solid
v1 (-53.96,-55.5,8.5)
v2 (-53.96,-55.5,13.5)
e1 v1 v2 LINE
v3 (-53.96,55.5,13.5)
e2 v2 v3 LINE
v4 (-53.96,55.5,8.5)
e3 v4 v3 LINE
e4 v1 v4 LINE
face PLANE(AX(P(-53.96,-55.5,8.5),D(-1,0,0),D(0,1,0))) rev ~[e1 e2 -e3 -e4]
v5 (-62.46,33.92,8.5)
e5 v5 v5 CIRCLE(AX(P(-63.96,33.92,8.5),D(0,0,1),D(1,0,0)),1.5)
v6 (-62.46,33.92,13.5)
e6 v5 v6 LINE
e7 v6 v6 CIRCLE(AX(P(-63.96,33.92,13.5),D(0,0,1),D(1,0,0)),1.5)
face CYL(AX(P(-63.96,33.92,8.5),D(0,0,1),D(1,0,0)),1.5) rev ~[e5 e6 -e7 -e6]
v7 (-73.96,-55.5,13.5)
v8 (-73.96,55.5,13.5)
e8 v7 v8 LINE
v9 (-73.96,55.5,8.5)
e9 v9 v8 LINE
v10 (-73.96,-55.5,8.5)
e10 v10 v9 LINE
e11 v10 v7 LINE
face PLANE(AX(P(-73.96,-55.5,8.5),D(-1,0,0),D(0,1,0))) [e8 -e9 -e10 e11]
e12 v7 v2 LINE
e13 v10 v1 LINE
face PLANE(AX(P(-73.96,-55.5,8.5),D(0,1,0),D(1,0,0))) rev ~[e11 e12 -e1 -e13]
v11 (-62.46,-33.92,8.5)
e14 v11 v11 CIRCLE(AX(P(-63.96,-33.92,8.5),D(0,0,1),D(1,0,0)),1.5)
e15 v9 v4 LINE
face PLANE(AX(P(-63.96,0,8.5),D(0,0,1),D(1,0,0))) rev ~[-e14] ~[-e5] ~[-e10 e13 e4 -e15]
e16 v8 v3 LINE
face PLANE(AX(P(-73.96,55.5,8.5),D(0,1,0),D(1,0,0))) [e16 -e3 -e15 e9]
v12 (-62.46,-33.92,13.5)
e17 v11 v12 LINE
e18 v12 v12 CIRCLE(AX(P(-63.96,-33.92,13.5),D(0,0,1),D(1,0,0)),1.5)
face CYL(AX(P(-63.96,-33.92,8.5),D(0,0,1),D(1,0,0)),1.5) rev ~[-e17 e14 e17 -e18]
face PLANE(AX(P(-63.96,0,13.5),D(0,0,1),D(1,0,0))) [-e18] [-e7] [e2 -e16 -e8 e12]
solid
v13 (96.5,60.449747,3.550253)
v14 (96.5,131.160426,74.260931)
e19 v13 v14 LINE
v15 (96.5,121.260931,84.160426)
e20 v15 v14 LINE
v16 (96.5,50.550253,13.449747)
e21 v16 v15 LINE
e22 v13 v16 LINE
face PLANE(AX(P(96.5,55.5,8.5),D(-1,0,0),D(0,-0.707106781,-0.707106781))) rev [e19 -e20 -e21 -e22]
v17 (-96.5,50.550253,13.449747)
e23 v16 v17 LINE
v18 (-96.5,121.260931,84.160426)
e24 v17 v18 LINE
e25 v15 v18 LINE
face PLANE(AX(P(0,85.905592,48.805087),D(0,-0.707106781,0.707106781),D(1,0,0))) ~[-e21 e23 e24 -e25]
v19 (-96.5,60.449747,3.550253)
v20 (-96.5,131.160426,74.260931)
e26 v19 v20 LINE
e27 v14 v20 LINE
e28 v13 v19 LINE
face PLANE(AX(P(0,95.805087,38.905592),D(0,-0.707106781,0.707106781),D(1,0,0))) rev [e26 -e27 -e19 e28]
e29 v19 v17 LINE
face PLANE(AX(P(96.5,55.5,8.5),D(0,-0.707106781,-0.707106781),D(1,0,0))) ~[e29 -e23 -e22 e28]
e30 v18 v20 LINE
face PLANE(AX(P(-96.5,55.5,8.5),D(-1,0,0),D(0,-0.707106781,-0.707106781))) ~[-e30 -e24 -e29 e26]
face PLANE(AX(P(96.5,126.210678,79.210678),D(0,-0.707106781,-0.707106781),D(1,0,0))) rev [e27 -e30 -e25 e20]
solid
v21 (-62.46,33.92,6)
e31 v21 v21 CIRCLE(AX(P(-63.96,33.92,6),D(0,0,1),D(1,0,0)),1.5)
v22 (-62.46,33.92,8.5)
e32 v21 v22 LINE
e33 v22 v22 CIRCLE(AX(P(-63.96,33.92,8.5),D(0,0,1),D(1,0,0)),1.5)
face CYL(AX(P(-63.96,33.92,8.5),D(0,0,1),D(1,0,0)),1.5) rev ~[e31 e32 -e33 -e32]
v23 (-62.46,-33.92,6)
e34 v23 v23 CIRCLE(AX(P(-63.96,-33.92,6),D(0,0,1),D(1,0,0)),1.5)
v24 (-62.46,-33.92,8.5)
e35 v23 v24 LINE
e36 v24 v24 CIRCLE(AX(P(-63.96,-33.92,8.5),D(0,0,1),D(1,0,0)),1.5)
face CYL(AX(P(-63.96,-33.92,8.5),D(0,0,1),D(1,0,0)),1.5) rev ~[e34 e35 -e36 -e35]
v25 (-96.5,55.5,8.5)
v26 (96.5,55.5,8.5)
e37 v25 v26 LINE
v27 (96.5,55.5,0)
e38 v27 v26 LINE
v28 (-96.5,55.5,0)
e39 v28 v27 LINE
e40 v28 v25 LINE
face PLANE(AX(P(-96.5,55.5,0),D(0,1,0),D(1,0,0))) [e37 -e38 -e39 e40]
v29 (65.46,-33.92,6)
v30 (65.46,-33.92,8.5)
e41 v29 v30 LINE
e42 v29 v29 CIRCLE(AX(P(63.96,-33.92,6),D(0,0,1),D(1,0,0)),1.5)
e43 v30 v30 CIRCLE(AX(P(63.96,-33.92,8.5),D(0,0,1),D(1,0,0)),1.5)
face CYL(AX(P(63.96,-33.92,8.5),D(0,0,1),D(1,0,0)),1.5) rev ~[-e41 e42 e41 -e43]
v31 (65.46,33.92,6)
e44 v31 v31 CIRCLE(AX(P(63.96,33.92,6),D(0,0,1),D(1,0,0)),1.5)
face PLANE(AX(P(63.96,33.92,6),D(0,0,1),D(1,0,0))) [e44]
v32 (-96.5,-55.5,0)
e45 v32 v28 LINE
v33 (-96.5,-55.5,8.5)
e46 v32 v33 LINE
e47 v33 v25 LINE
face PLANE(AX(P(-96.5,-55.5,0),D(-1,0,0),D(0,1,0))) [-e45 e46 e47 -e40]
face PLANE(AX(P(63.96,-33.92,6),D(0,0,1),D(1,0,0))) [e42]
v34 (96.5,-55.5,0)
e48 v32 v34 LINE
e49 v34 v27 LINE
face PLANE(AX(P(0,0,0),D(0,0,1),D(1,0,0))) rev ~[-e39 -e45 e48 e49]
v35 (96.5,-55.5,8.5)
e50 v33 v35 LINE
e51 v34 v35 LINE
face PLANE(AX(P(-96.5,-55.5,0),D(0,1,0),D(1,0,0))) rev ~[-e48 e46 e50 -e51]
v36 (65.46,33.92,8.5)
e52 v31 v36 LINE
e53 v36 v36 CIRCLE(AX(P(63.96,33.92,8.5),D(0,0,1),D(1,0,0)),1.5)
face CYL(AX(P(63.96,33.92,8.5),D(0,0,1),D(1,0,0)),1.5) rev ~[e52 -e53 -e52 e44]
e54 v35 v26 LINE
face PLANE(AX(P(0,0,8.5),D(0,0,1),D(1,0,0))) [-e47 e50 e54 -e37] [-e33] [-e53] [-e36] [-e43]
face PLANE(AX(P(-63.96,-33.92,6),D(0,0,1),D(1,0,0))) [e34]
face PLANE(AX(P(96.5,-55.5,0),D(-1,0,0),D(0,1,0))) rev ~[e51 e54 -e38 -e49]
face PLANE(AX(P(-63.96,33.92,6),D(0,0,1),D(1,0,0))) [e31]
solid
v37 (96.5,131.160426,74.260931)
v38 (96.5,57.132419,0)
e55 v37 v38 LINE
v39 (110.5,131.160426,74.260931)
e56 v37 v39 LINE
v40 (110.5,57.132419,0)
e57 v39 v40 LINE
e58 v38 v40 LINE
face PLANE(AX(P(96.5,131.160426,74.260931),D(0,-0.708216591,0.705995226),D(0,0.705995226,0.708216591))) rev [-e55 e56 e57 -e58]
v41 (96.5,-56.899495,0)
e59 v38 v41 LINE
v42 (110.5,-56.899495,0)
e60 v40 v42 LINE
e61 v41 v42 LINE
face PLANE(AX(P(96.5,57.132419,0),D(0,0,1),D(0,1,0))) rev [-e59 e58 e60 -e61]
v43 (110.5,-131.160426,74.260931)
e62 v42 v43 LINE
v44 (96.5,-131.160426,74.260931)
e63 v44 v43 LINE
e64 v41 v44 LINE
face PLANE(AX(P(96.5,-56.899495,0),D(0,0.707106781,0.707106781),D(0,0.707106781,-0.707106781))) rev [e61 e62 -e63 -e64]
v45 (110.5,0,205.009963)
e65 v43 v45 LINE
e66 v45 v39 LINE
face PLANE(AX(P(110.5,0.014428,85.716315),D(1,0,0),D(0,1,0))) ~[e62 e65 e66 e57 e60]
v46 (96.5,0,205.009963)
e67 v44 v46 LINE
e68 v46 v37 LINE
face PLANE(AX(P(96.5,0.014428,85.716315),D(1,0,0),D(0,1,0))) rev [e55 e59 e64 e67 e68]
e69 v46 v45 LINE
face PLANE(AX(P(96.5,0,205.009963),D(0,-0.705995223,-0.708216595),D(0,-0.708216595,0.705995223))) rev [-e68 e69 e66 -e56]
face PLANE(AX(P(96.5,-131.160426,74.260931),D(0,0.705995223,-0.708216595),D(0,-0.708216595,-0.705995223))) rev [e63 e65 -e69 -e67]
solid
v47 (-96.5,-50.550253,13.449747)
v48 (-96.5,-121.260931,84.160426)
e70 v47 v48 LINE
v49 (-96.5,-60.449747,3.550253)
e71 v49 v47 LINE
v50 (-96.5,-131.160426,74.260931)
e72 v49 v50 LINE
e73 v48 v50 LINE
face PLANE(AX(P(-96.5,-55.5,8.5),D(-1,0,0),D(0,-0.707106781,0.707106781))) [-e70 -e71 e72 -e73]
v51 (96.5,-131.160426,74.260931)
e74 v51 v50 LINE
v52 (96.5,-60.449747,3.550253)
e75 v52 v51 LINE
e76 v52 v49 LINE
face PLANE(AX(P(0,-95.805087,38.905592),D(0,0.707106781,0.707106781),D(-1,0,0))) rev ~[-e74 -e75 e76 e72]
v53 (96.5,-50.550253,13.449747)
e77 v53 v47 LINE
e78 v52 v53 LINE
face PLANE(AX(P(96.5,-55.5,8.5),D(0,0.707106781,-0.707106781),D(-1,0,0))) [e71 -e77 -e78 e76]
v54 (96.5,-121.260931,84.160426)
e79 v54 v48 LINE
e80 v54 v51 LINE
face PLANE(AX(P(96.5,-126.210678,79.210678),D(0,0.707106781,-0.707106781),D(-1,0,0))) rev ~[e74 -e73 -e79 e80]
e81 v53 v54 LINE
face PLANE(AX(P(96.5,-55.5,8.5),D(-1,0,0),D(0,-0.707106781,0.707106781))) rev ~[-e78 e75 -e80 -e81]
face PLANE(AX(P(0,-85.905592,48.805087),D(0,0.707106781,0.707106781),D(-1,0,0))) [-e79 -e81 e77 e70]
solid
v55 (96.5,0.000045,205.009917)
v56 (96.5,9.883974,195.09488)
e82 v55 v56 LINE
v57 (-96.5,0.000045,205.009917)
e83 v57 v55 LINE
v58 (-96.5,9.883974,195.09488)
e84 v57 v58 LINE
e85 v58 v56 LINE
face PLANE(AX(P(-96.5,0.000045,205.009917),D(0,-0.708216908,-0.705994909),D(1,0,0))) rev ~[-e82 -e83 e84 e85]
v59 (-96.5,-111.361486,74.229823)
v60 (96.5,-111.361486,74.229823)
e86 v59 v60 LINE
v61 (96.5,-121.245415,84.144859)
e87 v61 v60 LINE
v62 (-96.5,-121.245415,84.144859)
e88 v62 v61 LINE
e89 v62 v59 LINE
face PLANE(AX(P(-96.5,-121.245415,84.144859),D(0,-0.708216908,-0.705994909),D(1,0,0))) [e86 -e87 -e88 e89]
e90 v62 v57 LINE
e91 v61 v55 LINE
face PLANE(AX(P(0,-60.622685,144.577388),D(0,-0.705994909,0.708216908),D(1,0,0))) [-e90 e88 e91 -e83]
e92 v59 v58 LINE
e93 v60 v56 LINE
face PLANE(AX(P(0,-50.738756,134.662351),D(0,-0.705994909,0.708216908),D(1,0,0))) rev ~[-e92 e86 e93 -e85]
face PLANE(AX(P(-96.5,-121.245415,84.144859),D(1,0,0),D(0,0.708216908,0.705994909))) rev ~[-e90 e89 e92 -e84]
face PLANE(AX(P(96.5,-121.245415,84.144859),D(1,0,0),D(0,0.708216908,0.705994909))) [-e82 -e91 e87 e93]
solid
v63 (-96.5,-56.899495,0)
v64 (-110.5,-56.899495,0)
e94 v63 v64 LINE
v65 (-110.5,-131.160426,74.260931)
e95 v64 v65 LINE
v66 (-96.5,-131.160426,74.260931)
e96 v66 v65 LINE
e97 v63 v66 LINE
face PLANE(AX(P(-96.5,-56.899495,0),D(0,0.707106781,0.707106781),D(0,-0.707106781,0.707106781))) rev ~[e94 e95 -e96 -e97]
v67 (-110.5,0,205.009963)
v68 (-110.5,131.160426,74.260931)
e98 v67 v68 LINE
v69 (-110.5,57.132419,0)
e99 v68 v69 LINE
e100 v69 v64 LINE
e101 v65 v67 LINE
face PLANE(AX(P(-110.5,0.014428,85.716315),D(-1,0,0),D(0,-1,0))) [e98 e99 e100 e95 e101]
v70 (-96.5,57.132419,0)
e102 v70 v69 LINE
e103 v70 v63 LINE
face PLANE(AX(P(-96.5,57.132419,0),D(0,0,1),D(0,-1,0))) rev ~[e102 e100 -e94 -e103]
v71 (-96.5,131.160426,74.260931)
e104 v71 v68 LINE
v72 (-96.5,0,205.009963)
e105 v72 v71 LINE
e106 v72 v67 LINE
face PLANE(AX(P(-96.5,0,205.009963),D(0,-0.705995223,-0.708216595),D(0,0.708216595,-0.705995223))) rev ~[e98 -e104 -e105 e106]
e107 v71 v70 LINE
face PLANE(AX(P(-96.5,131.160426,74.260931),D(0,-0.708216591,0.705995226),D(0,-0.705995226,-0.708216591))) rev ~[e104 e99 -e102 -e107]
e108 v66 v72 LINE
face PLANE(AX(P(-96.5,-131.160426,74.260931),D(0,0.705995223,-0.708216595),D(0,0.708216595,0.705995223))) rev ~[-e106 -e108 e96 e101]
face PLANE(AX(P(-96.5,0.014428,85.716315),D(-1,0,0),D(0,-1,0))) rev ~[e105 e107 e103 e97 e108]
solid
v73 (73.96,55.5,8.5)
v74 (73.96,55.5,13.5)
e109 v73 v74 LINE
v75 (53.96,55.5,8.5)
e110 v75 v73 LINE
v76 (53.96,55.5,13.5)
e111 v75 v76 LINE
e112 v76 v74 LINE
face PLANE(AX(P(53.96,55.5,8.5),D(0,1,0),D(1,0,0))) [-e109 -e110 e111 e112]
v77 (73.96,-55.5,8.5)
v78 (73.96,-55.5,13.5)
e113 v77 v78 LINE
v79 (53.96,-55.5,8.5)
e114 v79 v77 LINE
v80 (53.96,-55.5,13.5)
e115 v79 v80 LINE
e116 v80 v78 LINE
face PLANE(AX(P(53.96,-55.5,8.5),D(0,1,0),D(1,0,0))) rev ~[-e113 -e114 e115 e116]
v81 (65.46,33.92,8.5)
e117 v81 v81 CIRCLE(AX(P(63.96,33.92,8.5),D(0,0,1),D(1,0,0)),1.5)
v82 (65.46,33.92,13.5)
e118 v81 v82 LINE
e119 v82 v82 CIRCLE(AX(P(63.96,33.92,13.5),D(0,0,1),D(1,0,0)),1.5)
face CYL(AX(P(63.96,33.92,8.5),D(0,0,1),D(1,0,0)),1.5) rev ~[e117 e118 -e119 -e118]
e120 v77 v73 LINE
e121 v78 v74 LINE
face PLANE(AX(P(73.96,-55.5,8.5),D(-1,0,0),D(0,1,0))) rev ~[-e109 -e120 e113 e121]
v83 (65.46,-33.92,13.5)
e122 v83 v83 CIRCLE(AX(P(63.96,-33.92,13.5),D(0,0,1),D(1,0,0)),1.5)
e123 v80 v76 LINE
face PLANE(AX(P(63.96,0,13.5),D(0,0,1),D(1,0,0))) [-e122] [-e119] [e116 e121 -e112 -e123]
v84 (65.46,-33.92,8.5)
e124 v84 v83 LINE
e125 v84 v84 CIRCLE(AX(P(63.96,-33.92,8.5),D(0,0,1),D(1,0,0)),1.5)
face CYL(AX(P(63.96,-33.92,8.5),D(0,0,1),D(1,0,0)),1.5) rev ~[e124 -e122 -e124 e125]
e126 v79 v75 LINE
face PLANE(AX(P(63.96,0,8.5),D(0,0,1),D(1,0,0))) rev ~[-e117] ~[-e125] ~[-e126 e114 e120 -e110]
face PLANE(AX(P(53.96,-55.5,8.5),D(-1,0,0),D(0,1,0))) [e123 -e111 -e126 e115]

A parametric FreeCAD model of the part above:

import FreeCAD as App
import Part
import Sketcher
from FreeCAD import Vector
Q = App.Units.Quantity

doc = App.newDocument("Part")
body = doc.addObject("PartDesign::Body", "Body")

# Sketch on XY plane
sketch1 = body.newObject("Sketcher::SketchObject", "Sketch")
sketch1.AttachmentSupport = (doc.getObject("XY_Plane"), [""])
sketch1.MapMode = "FlatFace"
sketch1.addGeometry([
    Part.LineSegment(Vector(-96, 56, 0), Vector(-96, -56, 0)),
    Part.LineSegment(Vector(-96, -56, 0), Vector(96, -56, 0)),
    Part.LineSegment(Vector(96, -56, 0), Vector(96, 56, 0)),
    Part.LineSegment(Vector(96, 56, 0), Vector(-96, 56, 0)),
], False)
sketch1.addConstraint([
    Sketcher.Constraint("Coincident", 0, 2, 1, 1),
    Sketcher.Constraint("Coincident", 1, 2, 2, 1),
    Sketcher.Constraint("Coincident", 2, 2, 3, 1),
    Sketcher.Constraint("Coincident", 3, 2, 0, 1),
    Sketcher.Constraint("Vertical", 0),
    Sketcher.Constraint("Horizontal", 1),
    Sketcher.Constraint("Vertical", 2),
    Sketcher.Constraint("Horizontal", 3),
    Sketcher.Constraint("Symmetric", 0, 2, 2, 2, -1, 1),
    Sketcher.Constraint("DistanceX", 1, 1, 1, 2, Q("193 mm")),
    Sketcher.Constraint("DistanceY", 0, 2, 0, 1, Q("111 mm")),
])
pad1 = body.newObject("PartDesign::Pad", "Pad")
pad1.Profile = sketch1
pad1.Length = 8.5
body2 = doc.addObject("PartDesign::Body", "Body001")
body2.AllowCompound = True

# Sketch on XY plane
sketch2 = body2.newObject("Sketcher::SketchObject", "Sketch001")
sketch2.AttachmentSupport = (doc.getObject("XY_Plane001"), [""])
sketch2.MapMode = "FlatFace"
sketch2.AttachmentOffset = App.Placement(Vector(0, 0, 8.5), App.Rotation())
sketch2.addGeometry([
    Part.LineSegment(Vector(-74, 56, 0), Vector(-74, -56, 0)),  # 0
    Part.LineSegment(Vector(-74, -56, 0), Vector(-54, -56, 0)),  # 1
    Part.LineSegment(Vector(-54, -56, 0), Vector(-54, 56, 0)),  # 2
    Part.LineSegment(Vector(-54, 56, 0), Vector(-74, 56, 0)),  # 3
    Part.LineSegment(Vector(54, 56, 0), Vector(54, -56, 0)),  # 4
    Part.LineSegment(Vector(54, -56, 0), Vector(74, -56, 0)),  # 5
    Part.LineSegment(Vector(74, -56, 0), Vector(74, 56, 0)),  # 6
    Part.LineSegment(Vector(74, 56, 0), Vector(54, 56, 0)),  # 7
], False)
sketch2.addConstraint([
    Sketcher.Constraint("Coincident", 0, 2, 1, 1),
    Sketcher.Constraint("Coincident", 1, 2, 2, 1),
    Sketcher.Constraint("Coincident", 2, 2, 3, 1),
    Sketcher.Constraint("Coincident", 3, 2, 0, 1),
    Sketcher.Constraint("Coincident", 4, 2, 5, 1),
    Sketcher.Constraint("Coincident", 5, 2, 6, 1),
    Sketcher.Constraint("Coincident", 6, 2, 7, 1),
    Sketcher.Constraint("Coincident", 7, 2, 4, 1),
    Sketcher.Constraint("Vertical", 0),
    Sketcher.Constraint("Horizontal", 1),
    Sketcher.Constraint("Vertical", 2),
    Sketcher.Constraint("Horizontal", 3),
    Sketcher.Constraint("Vertical", 4),
    Sketcher.Constraint("Horizontal", 5),
    Sketcher.Constraint("Vertical", 6),
    Sketcher.Constraint("Horizontal", 7),
    Sketcher.Constraint("Symmetric", 2, 2, 4, 2, -1, 1),
    Sketcher.Constraint("Symmetric", 0, 2, 6, 2, -1, 1),
    Sketcher.Constraint("Horizontal", 1, 2, 4, 2),
    Sketcher.Constraint("DistanceX", 1, 1, 1, 2, Q("20 mm")),
    Sketcher.Constraint("DistanceY", 0, 2, 0, 1, Q("111 mm")),
    Sketcher.Constraint("DistanceX", 0, 2, -1, 1, Q("73.96 mm")),
])
pad2 = body2.newObject("PartDesign::Pad", "Pad001")
pad2.Profile = sketch2
pad2.Length = 5
body3 = doc.addObject("PartDesign::Body", "Body002")
body3.AllowCompound = True

# Sketch on XY plane
sketch3 = body3.newObject("Sketcher::SketchObject", "Sketch002")
sketch3.AttachmentSupport = (doc.getObject("XY_Plane002"), [""])
sketch3.MapMode = "FlatFace"
sketch3.AttachmentOffset = App.Placement(Vector(0, 0, 8.5), App.Rotation())
sketch3.addGeometry([
    Part.Circle(Vector(-64, 33.9, 0), Vector(0, 0, 1), 1.5),
    Part.Circle(Vector(64, 33.9, 0), Vector(0, 0, 1), 1.5),
    Part.Circle(Vector(-64, -33.9, 0), Vector(0, 0, 1), 1.5),
    Part.Circle(Vector(64, -33.9, 0), Vector(0, 0, 1), 1.5),
], False)
sketch3.addConstraint([
    Sketcher.Constraint("Equal", 0, 1),
    Sketcher.Constraint("Equal", 1, 2),
    Sketcher.Constraint("Equal", 2, 3),
    Sketcher.Constraint("Symmetric", 1, 3, 2, 3, -1, 1),
    Sketcher.Constraint("Symmetric", 0, 3, 3, 3, -1, 1),
    Sketcher.Constraint("Symmetric", 0, 3, 1, 3, -2),
    Sketcher.Constraint("Diameter", 0, Q("3 mm")),
    Sketcher.Constraint("DistanceX", 0, 3, -1, 1, Q("63.96 mm")),
    Sketcher.Constraint("DistanceY", -1, 1, 0, 3, Q("33.92 mm")),
])
pad3 = body3.newObject("PartDesign::Pad", "Pad002")
pad3.Profile = sketch3
pad3.Type = "TwoLengths"
pad3.Length = 5.001
pad3.Length2 = 2.5
doc.recompute()

body4 = doc.addObject("PartDesign::Body", "Body003")
body4.BaseFeature = body3
boolean = body.newObject("PartDesign::Boolean", "Boolean")
boolean.Type = "Cut"
boolean.addObjects([body4])
doc.recompute()
body2.AllowCompound = True
doc.recompute()

boolean2 = body2.newObject("PartDesign::Boolean", "Boolean001")
boolean2.Type = "Cut"
boolean2.addObjects([body3])
body5 = doc.addObject("PartDesign::Body", "Body004")

# Sketch on an angled plane
sketch4 = body5.newObject("Sketcher::SketchObject", "Sketch003")
sketch4.Placement = App.Placement(Vector(0, -23.5, -23.5), App.Rotation(Vector(-1, 0, 0), Vector(0, -0.707106781, 0.707106781), Vector(0, 0.707106781, 0.707106781), "ZXY"))
sketch4.addGeometry([
    Part.LineSegment(Vector(-96, 145, 0), Vector(-96, 45, 0)),
    Part.LineSegment(Vector(-96, 45, 0), Vector(96, 45, 0)),
    Part.LineSegment(Vector(96, 45, 0), Vector(96, 145, 0)),
    Part.LineSegment(Vector(96, 145, 0), Vector(-96, 145, 0)),
], False)
sketch4.addConstraint([
    Sketcher.Constraint("Coincident", 0, 2, 1, 1),
    Sketcher.Constraint("Coincident", 1, 2, 2, 1),
    Sketcher.Constraint("Coincident", 2, 2, 3, 1),
    Sketcher.Constraint("Coincident", 3, 2, 0, 1),
    Sketcher.Constraint("Vertical", 0),
    Sketcher.Constraint("Horizontal", 1),
    Sketcher.Constraint("Vertical", 2),
    Sketcher.Constraint("Horizontal", 3),
    Sketcher.Constraint("DistanceX", 1, 1, 1, 2, Q("193 mm")),
    Sketcher.Constraint("DistanceY", 0, 2, 0, 1, Q("100 mm")),
    Sketcher.Constraint("DistanceX", 0, 2, -1, 1, Q("96.5 mm")),
    Sketcher.Constraint("DistanceY", -1, 1, 0, 2, Q("45.254834 mm")),
])
pad4 = body5.newObject("PartDesign::Pad", "Pad003")
pad4.Profile = sketch4
pad4.Length = 14
pad4.Midplane = True
body6 = doc.addObject("PartDesign::Body", "Body005")
doc.recompute()

mirroring = doc.addObject("Part::Mirroring", "Mirroring")
mirroring.Source = body5
mirroring.Base = Vector(0, 0, 0)
mirroring.Normal = Vector(0, -1, 0)
body6.BaseFeature = mirroring
doc.recompute()
body7 = doc.addObject("PartDesign::Body", "Body006")

# Sketch on YZ plane
sketch5 = body7.newObject("Sketcher::SketchObject", "Sketch004")
sketch5.AttachmentSupport = (doc.getObject("YZ_Plane006"), [""])
sketch5.MapMode = "FlatFace"
sketch5.AttachmentOffset = App.Placement(Vector(0, 0, -96.5), App.Rotation())
sketch5.addGeometry([
    Part.LineSegment(Vector(-57, 0, 0), Vector(-131, 74, 0)),  # 0
    Part.LineSegment(Vector(-131, 74, 0), Vector(0, 205, 0)),  # 1
    Part.LineSegment(Vector(0, 205, 0), Vector(131, 74, 0)),  # 2
    Part.LineSegment(Vector(131, 74, 0), Vector(57, 0, 0)),  # 3
    Part.LineSegment(Vector(57, 0, 0), Vector(-57, 0, 0)),  # 4
], False)
sketch5.addConstraint([
    Sketcher.Constraint("Coincident", 0, 2, 1, 1),
    Sketcher.Constraint("Coincident", 1, 2, 2, 1),
    Sketcher.Constraint("Coincident", 2, 2, 3, 1),
    Sketcher.Constraint("Coincident", 3, 2, 4, 1),
    Sketcher.Constraint("Coincident", 4, 2, 0, 1),
    Sketcher.Constraint("Horizontal", 4),
    Sketcher.Constraint("Symmetric", 0, 2, 2, 2, -2),
    Sketcher.Constraint("PointOnObject", 1, 2, -2),
    Sketcher.Constraint("PointOnObject", 3, 2, -1),
    Sketcher.Constraint("Perpendicular", 2, 3),
    Sketcher.Constraint("Angle", 0, Q("135 deg")),
    Sketcher.Constraint("Angle", 1, Q("44.910003 deg")),
    Sketcher.Constraint("DistanceX", 4, 2, 4, 1, Q("114.031914 mm")),
    Sketcher.Constraint("DistanceY", -1, 1, 0, 2, Q("74.260931 mm")),
])
pad5 = body7.newObject("PartDesign::Pad", "Pad004")
pad5.Profile = sketch5
pad5.Length = 14
pad5.Reversed = True
body8 = doc.addObject("PartDesign::Body", "Body007")
doc.recompute()

mirroring2 = doc.addObject("Part::Mirroring", "Mirroring001")
mirroring2.Source = body7
mirroring2.Base = Vector(0, 0, 0)
mirroring2.Normal = Vector(1, 0, 0)
body8.BaseFeature = mirroring2
doc.recompute()
body9 = doc.addObject("PartDesign::Body", "Body008")

# Sketch on an angled plane
sketch6 = body9.newObject("Sketcher::SketchObject", "Sketch005")
sketch6.Placement = App.Placement(Vector(0, -102.504476, 102.826999), App.Rotation(Vector(1, 0, 0), Vector(0, 0.708216908, 0.705994909), Vector(0, -0.705994909, 0.708216908), "ZXY"))
sketch6.addGeometry([
    Part.LineSegment(Vector(-96, 145, 0), Vector(-96, -26, 0)),
    Part.LineSegment(Vector(-96, -26, 0), Vector(96, -26, 0)),
    Part.LineSegment(Vector(96, -26, 0), Vector(96, 145, 0)),
    Part.LineSegment(Vector(96, 145, 0), Vector(-96, 145, 0)),
], False)
sketch6.addConstraint([
    Sketcher.Constraint("Coincident", 0, 2, 1, 1),
    Sketcher.Constraint("Coincident", 1, 2, 2, 1),
    Sketcher.Constraint("Coincident", 2, 2, 3, 1),
    Sketcher.Constraint("Coincident", 3, 2, 0, 1),
    Sketcher.Constraint("Vertical", 0),
    Sketcher.Constraint("Horizontal", 1),
    Sketcher.Constraint("Vertical", 2),
    Sketcher.Constraint("Horizontal", 3),
    Sketcher.Constraint("DistanceX", 1, 1, 1, 2, Q("193 mm")),
    Sketcher.Constraint("DistanceX", 0, 2, -1, 1, Q("96.5 mm")),
    Sketcher.Constraint("DistanceY", 0, 2, 0, 1, Q("171.1982 mm")),
    Sketcher.Constraint("DistanceY", 0, 2, -1, 1, Q("26.462145 mm")),
])
pad6 = body9.newObject("PartDesign::Pad", "Pad005")
pad6.Profile = sketch6
pad6.Length = 14
pad6.Reversed = True
mirroring.Visibility = False
mirroring2.Visibility = False

doc.recompute()
